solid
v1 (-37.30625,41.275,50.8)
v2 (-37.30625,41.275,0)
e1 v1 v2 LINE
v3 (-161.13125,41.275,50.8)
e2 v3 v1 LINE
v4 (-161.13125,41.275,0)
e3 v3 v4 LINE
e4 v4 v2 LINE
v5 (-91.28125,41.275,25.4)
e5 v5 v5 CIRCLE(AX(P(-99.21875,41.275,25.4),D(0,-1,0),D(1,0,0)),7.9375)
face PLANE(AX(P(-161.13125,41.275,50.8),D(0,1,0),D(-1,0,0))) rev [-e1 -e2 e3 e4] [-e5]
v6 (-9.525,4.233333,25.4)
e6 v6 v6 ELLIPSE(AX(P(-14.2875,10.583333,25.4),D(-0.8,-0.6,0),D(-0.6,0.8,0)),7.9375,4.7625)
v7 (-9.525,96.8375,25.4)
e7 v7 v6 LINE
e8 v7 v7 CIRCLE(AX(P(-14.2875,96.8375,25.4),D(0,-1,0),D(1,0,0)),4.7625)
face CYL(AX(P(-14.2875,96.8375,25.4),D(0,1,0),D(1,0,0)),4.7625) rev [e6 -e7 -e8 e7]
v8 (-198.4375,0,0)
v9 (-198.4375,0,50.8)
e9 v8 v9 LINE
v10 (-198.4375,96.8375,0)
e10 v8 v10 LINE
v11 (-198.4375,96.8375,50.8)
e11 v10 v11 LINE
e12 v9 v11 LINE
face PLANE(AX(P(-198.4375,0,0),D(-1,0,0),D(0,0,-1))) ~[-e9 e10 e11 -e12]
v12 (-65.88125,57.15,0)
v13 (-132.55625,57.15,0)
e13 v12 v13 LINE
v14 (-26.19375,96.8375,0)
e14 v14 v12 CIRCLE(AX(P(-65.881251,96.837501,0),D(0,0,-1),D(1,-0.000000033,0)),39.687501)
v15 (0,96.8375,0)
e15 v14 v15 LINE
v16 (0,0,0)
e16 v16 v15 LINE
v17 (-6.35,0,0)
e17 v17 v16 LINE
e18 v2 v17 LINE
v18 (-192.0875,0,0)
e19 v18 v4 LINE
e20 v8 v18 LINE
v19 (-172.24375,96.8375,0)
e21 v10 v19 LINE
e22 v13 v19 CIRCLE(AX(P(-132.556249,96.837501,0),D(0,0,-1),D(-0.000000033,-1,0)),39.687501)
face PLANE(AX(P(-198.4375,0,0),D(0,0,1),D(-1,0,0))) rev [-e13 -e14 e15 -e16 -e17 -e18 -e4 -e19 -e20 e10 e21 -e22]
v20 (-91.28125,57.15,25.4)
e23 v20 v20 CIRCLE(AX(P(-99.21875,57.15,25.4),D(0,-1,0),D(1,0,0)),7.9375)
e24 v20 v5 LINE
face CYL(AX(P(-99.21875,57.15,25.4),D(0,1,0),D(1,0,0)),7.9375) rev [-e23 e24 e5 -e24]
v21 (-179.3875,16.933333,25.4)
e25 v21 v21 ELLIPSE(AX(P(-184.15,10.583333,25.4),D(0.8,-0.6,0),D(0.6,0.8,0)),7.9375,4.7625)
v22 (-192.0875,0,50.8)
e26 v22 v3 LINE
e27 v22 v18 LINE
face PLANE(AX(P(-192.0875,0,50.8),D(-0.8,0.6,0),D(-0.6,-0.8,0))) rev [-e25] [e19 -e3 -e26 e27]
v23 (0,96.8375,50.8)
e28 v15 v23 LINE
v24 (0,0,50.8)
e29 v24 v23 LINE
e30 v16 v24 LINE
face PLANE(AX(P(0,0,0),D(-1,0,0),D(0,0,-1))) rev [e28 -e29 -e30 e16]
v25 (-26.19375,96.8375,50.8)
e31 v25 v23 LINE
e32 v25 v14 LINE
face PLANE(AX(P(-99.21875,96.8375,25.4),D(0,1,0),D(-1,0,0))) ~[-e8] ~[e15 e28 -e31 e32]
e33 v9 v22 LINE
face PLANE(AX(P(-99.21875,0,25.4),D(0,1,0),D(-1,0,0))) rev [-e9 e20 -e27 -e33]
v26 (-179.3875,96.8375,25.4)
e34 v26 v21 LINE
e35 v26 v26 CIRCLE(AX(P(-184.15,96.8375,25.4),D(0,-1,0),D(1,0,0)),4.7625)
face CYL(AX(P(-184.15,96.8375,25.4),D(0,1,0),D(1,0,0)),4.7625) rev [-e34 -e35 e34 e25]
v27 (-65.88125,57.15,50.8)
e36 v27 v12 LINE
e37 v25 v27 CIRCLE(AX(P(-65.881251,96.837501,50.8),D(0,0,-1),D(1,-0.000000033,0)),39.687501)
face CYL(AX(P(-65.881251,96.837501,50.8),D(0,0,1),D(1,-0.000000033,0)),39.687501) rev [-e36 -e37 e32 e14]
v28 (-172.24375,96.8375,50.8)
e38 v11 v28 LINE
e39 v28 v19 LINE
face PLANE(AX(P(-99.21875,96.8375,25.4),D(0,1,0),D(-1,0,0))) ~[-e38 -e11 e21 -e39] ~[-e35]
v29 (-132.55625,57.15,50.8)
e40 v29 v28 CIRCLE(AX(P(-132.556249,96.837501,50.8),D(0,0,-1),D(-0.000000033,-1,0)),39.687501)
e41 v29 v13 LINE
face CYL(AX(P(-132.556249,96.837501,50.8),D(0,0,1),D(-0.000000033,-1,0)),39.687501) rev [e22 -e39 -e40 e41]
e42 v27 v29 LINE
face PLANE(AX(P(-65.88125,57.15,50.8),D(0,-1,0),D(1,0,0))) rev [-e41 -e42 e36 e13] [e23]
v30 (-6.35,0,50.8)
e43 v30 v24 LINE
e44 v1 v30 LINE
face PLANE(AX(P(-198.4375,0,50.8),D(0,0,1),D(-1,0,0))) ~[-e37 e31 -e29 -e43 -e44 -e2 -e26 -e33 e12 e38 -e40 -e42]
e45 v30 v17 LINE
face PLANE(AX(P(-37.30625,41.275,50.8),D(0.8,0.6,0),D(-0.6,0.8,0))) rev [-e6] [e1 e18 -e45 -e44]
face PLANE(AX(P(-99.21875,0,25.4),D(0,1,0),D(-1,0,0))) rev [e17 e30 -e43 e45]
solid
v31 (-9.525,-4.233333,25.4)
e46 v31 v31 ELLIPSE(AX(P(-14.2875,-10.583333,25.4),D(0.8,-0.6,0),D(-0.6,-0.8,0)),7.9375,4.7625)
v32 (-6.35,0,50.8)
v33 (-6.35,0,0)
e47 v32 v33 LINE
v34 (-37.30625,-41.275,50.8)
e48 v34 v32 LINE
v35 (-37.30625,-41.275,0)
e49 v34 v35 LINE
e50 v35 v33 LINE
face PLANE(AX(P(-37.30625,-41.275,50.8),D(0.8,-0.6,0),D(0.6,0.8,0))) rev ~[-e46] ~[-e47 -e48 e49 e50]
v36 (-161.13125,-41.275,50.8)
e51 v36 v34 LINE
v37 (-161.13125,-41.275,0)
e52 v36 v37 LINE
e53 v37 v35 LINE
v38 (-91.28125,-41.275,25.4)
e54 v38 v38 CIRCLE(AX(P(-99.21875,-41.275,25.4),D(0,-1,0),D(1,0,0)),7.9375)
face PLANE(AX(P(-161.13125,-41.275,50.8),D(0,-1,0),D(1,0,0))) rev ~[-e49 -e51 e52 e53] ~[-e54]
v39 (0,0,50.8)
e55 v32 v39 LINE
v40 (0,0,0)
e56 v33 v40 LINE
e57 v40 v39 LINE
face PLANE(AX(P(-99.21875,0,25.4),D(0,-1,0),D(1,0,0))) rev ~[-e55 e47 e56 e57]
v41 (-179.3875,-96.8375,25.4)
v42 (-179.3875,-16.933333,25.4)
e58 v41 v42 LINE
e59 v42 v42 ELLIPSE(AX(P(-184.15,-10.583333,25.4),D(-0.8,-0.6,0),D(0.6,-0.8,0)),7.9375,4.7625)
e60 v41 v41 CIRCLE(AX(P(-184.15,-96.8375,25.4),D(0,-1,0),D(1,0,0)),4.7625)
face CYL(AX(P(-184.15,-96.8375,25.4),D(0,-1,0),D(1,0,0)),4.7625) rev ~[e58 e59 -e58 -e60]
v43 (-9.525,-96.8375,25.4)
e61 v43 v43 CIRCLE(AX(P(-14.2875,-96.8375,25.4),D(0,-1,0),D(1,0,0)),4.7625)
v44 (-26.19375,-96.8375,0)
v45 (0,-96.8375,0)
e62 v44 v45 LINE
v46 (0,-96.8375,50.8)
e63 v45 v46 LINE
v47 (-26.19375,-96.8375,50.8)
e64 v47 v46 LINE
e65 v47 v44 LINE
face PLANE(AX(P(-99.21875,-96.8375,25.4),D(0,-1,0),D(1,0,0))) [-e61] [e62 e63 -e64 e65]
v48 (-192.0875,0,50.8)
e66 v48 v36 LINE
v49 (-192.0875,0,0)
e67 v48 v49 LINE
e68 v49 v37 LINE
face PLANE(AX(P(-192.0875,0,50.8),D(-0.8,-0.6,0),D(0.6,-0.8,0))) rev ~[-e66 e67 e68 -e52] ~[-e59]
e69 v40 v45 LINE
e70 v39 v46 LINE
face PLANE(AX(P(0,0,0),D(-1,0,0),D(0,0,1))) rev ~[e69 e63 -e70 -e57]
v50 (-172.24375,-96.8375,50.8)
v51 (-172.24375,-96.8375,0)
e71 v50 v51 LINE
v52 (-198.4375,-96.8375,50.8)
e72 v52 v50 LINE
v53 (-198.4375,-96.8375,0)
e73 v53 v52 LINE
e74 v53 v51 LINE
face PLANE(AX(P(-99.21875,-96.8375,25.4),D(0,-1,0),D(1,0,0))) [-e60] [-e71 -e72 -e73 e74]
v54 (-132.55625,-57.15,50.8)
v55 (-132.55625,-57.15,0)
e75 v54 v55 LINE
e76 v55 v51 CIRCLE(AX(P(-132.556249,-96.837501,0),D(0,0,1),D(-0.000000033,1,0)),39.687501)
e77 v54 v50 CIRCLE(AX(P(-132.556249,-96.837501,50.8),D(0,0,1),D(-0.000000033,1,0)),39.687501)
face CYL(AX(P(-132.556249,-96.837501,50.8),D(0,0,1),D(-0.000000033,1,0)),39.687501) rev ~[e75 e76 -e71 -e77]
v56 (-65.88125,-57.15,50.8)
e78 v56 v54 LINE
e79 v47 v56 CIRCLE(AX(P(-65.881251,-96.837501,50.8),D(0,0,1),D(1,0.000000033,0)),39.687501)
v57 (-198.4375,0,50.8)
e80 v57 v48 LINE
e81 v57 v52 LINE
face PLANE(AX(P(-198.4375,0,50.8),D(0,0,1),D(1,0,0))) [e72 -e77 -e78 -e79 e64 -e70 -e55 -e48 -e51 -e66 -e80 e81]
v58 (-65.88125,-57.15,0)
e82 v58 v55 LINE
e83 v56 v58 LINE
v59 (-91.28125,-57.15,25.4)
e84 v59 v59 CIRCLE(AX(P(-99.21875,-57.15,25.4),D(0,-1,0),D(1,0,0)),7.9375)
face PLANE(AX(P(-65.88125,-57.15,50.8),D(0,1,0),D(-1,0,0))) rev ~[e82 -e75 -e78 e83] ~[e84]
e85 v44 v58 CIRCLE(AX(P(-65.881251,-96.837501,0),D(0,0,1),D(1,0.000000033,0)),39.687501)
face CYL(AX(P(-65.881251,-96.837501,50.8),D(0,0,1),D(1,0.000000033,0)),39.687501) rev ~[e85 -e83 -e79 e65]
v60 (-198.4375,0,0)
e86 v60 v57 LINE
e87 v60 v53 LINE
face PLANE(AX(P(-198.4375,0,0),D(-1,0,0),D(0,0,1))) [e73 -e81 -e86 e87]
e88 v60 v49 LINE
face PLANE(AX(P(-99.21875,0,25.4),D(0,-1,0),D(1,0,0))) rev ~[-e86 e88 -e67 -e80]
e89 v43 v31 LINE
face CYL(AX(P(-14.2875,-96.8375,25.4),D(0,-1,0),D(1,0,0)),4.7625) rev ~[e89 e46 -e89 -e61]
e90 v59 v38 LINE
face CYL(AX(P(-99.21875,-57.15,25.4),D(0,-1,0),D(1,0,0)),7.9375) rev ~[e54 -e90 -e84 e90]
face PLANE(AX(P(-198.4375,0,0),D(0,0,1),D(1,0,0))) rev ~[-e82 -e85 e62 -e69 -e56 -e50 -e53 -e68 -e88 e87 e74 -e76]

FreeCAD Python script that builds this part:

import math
import FreeCAD as App
import Part
import Sketcher
Q = App.Units.Quantity


def add_polygon(sketch, points):
    """Adds a closed chain of lines whose ends are joined by coincident constraints."""
    first, n = sketch.GeometryCount, len(points)
    for a, b in zip(points, points[1:] + points[:1]):
        sketch.addGeometry(Part.LineSegment(App.Vector(*a, 0), App.Vector(*b, 0)), False)
    for i in range(n):
        sketch.addConstraint(Sketcher.Constraint("Coincident", first + i, 2, first + (i + 1) % n, 1))

doc = App.newDocument("Part")
body = doc.addObject("PartDesign::Body", "Body")

# Sketch on XZ plane
sketch1 = body.newObject("Sketcher::SketchObject", "Sketch")
sketch1.AttachmentSupport = (doc.getObject("XZ_Plane"), [""])
sketch1.MapMode = "FlatFace"
add_polygon(sketch1, [(-198.4375, 50.8), (-198.4375, 0), (0, 0), (0, 50.8)])  # lines 0-3
sketch1.addConstraint(Sketcher.Constraint("Vertical", 0))
sketch1.addConstraint(Sketcher.Constraint("Horizontal", 1))
sketch1.addConstraint(Sketcher.Constraint("Vertical", 2))
sketch1.addConstraint(Sketcher.Constraint("Horizontal", 3))
sketch1.addConstraint(Sketcher.Constraint("Coincident", 1, 2, -1, 1))
sketch1.addConstraint(Sketcher.Constraint("DistanceY", 0, 2, 0, 1, Q("2 in")))
sketch1.addConstraint(Sketcher.Constraint("DistanceX", 1, 1, 1, 2, Q("7.8125 in")))
pad1 = body.newObject("PartDesign::Pad", "Pad")
pad1.Profile = sketch1
pad1.Length = Q("3.8125 in")

# Sketch on XY plane
sketch2 = body.newObject("Sketcher::SketchObject", "Sketch001")
sketch2.AttachmentSupport = (doc.getObject("XY_Plane"), [""])
sketch2.MapMode = "FlatFace"
sketch2.AttachmentOffset = App.Placement(App.Vector(0, 0, 2 * 25.4), App.Rotation())
sketch2.addGeometry(Part.ArcOfCircle(Part.Circle(App.Vector(-65.881251, -96.837501, 0), App.Vector(0, 0, 1), 39.687501), math.radians(0.000002), math.radians(89.999998)), False)
sketch2.addGeometry(Part.LineSegment(App.Vector(-65.88125, -57.15, 0), App.Vector(-132.55625, -57.15, 0)), False)
sketch2.addGeometry(Part.ArcOfCircle(Part.Circle(App.Vector(-132.556249, -96.837501, 0), App.Vector(0, 0, 1), 39.687501), math.radians(90.000002), math.radians(179.999998)), False)
sketch2.addGeometry(Part.LineSegment(App.Vector(-172.24375, -96.8375, 0), App.Vector(-26.19375, -96.8375, 0)), False)
sketch2.addConstraint(Sketcher.Constraint("Tangent", 0, 2, 1, 1))
sketch2.addConstraint(Sketcher.Constraint("Tangent", 1, 2, 2, 1))
sketch2.addConstraint(Sketcher.Constraint("Coincident", 2, 2, 3, 1))
sketch2.addConstraint(Sketcher.Constraint("Coincident", 3, 2, 0, 1))
sketch2.addConstraint(Sketcher.Constraint("Horizontal", 1))
sketch2.addConstraint(Sketcher.Constraint("Horizontal", 3))
sketch2.addConstraint(Sketcher.Constraint("Equal", 0, 2))
sketch2.addConstraint(Sketcher.Constraint("Horizontal", 0, 3, 2, 2))
sketch2.addConstraint(Sketcher.Constraint("Radius", 0, Q("1.5625001 in")))
sketch2.addConstraint(Sketcher.Constraint("DistanceX", 3, 1, 3, 2, Q("5.75 in")))
sketch2.addConstraint(Sketcher.Constraint("DistanceY", 0, 2, -1, 1, Q("2.25 in")))
sketch2.addConstraint(Sketcher.Constraint("DistanceX", 0, 3, -1, 1, Q("2.5937501 in")))
pocket1 = body.newObject("PartDesign::Pocket", "Pocket")
pocket1.Profile = sketch2
pocket1.Type = "ThroughAll"

# Sketch on XY plane
sketch3 = body.newObject("Sketcher::SketchObject", "Sketch002")
sketch3.AttachmentSupport = (doc.getObject("XY_Plane"), [""])
sketch3.MapMode = "FlatFace"
sketch3.AttachmentOffset = App.Placement(App.Vector(0, 0, 2 * 25.4), App.Rotation())
add_polygon(sketch3, [(-6.35, 0), (-192.0875, 0), (-161.13125, -41.275), (-37.30625, -41.275)])  # lines 0-3
sketch3.addGeometry(Part.ArcOfCircle(Part.Circle(App.Vector(-65.881251, -96.837501, 0), App.Vector(0, 0, 1), 39.687501), math.radians(0.000002), math.radians(89.999998)), False)  # 4
sketch3.addGeometry(Part.LineSegment(App.Vector(-65.88125, -57.15, 0), App.Vector(-132.55625, -57.15, 0)), False)  # 5
sketch3.addGeometry(Part.ArcOfCircle(Part.Circle(App.Vector(-132.556249, -96.837501, 0), App.Vector(0, 0, 1), 39.687501), math.radians(90.000002), math.radians(179.999998)), False)  # 6
sketch3.addGeometry(Part.LineSegment(App.Vector(-172.24375, -96.8375, 0), App.Vector(-26.19375, -96.8375, 0)), False)  # 7
sketch3.addConstraint(Sketcher.Constraint("Tangent", 4, 2, 5, 1))
sketch3.addConstraint(Sketcher.Constraint("Tangent", 5, 2, 6, 1))
sketch3.addConstraint(Sketcher.Constraint("Coincident", 6, 2, 7, 1))
sketch3.addConstraint(Sketcher.Constraint("Coincident", 7, 2, 4, 1))
sketch3.addConstraint(Sketcher.Constraint("Horizontal", 0))
sketch3.addConstraint(Sketcher.Constraint("Horizontal", 2))
sketch3.addConstraint(Sketcher.Constraint("Horizontal", 5))
sketch3.addConstraint(Sketcher.Constraint("Horizontal", 7))
sketch3.addConstraint(Sketcher.Constraint("Equal", 4, 6))
sketch3.addConstraint(Sketcher.Constraint("PointOnObject", 0, 2, -1))
sketch3.addConstraint(Sketcher.Constraint("Horizontal", 4, 3, 6, 2))
sketch3.addConstraint(Sketcher.Constraint("Equal", 1, 3))
sketch3.addConstraint(Sketcher.Constraint("Radius", 4, Q("1.5625001 in")))
sketch3.addConstraint(Sketcher.Constraint("DistanceX", 7, 1, 7, 2, Q("5.75 in")))
sketch3.addConstraint(Sketcher.Constraint("DistanceX", 0, 2, 0, 1, Q("7.3125 in")))
sketch3.addConstraint(Sketcher.Constraint("DistanceX", 2, 1, 2, 2, Q("4.875 in")))
sketch3.addConstraint(Sketcher.Constraint("DistanceX", 3, 2, -1, 1, Q("0.25 in")))
sketch3.addConstraint(Sketcher.Constraint("DistanceY", 4, 2, -1, 1, Q("2.25 in")))
sketch3.addConstraint(Sketcher.Constraint("DistanceX", 1, 2, 4, 3, Q("3.7499999 in")))
sketch3.addConstraint(Sketcher.Constraint("Distance", 1, Q("2.03125 in")))
pocket2 = body.newObject("PartDesign::Pocket", "Pocket001")
pocket2.Profile = sketch3
pocket2.Type = "ThroughAll"

# Sketch on XZ plane
sketch4 = body.newObject("Sketcher::SketchObject", "Sketch003")
sketch4.AttachmentSupport = (doc.getObject("XZ_Plane"), [""])
sketch4.MapMode = "FlatFace"
sketch4.AttachmentOffset = App.Placement(App.Vector(0, 0, 2.25 * 25.4), App.Rotation())
sketch4.addGeometry(Part.Circle(App.Vector(-99.21875, 25.4, 0), App.Vector(0, 0, 1), 7.9375), False)
sketch4.addConstraint(Sketcher.Constraint("Diameter", 0, Q("0.625 in")))
sketch4.addConstraint(Sketcher.Constraint("DistanceY", -1, 1, 0, 3, Q("1 in")))
sketch4.addConstraint(Sketcher.Constraint("DistanceX", 0, 3, -1, 1, Q("3.90625 in")))
pocket3 = body.newObject("PartDesign::Pocket", "Pocket002")
pocket3.Profile = sketch4
pocket3.Type = "ThroughAll"

# Sketch on XZ plane
sketch5 = body.newObject("Sketcher::SketchObject", "Sketch004")
sketch5.AttachmentSupport = (doc.getObject("XZ_Plane"), [""])
sketch5.MapMode = "FlatFace"
sketch5.AttachmentOffset = App.Placement(App.Vector(0, 0, 3.8125 * 25.4), App.Rotation())
sketch5.addGeometry(Part.Circle(App.Vector(-184.15, 25.4, 0), App.Vector(0, 0, 1), 4.7625), False)
sketch5.addConstraint(Sketcher.Constraint("Diameter", 0, Q("0.375 in")))
sketch5.addConstraint(Sketcher.Constraint("DistanceY", -1, 1, 0, 3, Q("1 in")))
sketch5.addConstraint(Sketcher.Constraint("DistanceX", 0, 3, -1, 1, Q("7.25 in")))
pocket4 = body.newObject("PartDesign::Pocket", "Pocket003")
pocket4.Profile = sketch5
pocket4.Type = "ThroughAll"

# Sketch on XZ plane
sketch6 = body.newObject("Sketcher::SketchObject", "Sketch005")
sketch6.AttachmentSupport = (doc.getObject("XZ_Plane"), [""])
sketch6.MapMode = "FlatFace"
sketch6.AttachmentOffset = App.Placement(App.Vector(0, 0, 3.8125 * 25.4), App.Rotation())
sketch6.addGeometry(Part.Circle(App.Vector(-14.2875, 25.4, 0), App.Vector(0, 0, 1), 4.7625), False)
sketch6.addConstraint(Sketcher.Constraint("Diameter", 0, Q("0.375 in")))
sketch6.addConstraint(Sketcher.Constraint("DistanceY", -1, 1, 0, 3, Q("1 in")))
sketch6.addConstraint(Sketcher.Constraint("DistanceX", 0, 3, -1, 1, Q("0.5625 in")))
pocket5 = body.newObject("PartDesign::Pocket", "Pocket004")
pocket5.Profile = sketch6
pocket5.Type = "ThroughAll"
body2 = doc.addObject("PartDesign::Body", "Body001")
doc.recompute()

mirroring = doc.addObject("Part::Mirroring", "Mirroring")
mirroring.Source = body
mirroring.Base = App.Vector(0, 0, 0)
mirroring.Normal = App.Vector(0, -1, 0)
body2.BaseFeature = mirroring
doc.recompute()
mirroring.Visibility = False

doc.recompute()
